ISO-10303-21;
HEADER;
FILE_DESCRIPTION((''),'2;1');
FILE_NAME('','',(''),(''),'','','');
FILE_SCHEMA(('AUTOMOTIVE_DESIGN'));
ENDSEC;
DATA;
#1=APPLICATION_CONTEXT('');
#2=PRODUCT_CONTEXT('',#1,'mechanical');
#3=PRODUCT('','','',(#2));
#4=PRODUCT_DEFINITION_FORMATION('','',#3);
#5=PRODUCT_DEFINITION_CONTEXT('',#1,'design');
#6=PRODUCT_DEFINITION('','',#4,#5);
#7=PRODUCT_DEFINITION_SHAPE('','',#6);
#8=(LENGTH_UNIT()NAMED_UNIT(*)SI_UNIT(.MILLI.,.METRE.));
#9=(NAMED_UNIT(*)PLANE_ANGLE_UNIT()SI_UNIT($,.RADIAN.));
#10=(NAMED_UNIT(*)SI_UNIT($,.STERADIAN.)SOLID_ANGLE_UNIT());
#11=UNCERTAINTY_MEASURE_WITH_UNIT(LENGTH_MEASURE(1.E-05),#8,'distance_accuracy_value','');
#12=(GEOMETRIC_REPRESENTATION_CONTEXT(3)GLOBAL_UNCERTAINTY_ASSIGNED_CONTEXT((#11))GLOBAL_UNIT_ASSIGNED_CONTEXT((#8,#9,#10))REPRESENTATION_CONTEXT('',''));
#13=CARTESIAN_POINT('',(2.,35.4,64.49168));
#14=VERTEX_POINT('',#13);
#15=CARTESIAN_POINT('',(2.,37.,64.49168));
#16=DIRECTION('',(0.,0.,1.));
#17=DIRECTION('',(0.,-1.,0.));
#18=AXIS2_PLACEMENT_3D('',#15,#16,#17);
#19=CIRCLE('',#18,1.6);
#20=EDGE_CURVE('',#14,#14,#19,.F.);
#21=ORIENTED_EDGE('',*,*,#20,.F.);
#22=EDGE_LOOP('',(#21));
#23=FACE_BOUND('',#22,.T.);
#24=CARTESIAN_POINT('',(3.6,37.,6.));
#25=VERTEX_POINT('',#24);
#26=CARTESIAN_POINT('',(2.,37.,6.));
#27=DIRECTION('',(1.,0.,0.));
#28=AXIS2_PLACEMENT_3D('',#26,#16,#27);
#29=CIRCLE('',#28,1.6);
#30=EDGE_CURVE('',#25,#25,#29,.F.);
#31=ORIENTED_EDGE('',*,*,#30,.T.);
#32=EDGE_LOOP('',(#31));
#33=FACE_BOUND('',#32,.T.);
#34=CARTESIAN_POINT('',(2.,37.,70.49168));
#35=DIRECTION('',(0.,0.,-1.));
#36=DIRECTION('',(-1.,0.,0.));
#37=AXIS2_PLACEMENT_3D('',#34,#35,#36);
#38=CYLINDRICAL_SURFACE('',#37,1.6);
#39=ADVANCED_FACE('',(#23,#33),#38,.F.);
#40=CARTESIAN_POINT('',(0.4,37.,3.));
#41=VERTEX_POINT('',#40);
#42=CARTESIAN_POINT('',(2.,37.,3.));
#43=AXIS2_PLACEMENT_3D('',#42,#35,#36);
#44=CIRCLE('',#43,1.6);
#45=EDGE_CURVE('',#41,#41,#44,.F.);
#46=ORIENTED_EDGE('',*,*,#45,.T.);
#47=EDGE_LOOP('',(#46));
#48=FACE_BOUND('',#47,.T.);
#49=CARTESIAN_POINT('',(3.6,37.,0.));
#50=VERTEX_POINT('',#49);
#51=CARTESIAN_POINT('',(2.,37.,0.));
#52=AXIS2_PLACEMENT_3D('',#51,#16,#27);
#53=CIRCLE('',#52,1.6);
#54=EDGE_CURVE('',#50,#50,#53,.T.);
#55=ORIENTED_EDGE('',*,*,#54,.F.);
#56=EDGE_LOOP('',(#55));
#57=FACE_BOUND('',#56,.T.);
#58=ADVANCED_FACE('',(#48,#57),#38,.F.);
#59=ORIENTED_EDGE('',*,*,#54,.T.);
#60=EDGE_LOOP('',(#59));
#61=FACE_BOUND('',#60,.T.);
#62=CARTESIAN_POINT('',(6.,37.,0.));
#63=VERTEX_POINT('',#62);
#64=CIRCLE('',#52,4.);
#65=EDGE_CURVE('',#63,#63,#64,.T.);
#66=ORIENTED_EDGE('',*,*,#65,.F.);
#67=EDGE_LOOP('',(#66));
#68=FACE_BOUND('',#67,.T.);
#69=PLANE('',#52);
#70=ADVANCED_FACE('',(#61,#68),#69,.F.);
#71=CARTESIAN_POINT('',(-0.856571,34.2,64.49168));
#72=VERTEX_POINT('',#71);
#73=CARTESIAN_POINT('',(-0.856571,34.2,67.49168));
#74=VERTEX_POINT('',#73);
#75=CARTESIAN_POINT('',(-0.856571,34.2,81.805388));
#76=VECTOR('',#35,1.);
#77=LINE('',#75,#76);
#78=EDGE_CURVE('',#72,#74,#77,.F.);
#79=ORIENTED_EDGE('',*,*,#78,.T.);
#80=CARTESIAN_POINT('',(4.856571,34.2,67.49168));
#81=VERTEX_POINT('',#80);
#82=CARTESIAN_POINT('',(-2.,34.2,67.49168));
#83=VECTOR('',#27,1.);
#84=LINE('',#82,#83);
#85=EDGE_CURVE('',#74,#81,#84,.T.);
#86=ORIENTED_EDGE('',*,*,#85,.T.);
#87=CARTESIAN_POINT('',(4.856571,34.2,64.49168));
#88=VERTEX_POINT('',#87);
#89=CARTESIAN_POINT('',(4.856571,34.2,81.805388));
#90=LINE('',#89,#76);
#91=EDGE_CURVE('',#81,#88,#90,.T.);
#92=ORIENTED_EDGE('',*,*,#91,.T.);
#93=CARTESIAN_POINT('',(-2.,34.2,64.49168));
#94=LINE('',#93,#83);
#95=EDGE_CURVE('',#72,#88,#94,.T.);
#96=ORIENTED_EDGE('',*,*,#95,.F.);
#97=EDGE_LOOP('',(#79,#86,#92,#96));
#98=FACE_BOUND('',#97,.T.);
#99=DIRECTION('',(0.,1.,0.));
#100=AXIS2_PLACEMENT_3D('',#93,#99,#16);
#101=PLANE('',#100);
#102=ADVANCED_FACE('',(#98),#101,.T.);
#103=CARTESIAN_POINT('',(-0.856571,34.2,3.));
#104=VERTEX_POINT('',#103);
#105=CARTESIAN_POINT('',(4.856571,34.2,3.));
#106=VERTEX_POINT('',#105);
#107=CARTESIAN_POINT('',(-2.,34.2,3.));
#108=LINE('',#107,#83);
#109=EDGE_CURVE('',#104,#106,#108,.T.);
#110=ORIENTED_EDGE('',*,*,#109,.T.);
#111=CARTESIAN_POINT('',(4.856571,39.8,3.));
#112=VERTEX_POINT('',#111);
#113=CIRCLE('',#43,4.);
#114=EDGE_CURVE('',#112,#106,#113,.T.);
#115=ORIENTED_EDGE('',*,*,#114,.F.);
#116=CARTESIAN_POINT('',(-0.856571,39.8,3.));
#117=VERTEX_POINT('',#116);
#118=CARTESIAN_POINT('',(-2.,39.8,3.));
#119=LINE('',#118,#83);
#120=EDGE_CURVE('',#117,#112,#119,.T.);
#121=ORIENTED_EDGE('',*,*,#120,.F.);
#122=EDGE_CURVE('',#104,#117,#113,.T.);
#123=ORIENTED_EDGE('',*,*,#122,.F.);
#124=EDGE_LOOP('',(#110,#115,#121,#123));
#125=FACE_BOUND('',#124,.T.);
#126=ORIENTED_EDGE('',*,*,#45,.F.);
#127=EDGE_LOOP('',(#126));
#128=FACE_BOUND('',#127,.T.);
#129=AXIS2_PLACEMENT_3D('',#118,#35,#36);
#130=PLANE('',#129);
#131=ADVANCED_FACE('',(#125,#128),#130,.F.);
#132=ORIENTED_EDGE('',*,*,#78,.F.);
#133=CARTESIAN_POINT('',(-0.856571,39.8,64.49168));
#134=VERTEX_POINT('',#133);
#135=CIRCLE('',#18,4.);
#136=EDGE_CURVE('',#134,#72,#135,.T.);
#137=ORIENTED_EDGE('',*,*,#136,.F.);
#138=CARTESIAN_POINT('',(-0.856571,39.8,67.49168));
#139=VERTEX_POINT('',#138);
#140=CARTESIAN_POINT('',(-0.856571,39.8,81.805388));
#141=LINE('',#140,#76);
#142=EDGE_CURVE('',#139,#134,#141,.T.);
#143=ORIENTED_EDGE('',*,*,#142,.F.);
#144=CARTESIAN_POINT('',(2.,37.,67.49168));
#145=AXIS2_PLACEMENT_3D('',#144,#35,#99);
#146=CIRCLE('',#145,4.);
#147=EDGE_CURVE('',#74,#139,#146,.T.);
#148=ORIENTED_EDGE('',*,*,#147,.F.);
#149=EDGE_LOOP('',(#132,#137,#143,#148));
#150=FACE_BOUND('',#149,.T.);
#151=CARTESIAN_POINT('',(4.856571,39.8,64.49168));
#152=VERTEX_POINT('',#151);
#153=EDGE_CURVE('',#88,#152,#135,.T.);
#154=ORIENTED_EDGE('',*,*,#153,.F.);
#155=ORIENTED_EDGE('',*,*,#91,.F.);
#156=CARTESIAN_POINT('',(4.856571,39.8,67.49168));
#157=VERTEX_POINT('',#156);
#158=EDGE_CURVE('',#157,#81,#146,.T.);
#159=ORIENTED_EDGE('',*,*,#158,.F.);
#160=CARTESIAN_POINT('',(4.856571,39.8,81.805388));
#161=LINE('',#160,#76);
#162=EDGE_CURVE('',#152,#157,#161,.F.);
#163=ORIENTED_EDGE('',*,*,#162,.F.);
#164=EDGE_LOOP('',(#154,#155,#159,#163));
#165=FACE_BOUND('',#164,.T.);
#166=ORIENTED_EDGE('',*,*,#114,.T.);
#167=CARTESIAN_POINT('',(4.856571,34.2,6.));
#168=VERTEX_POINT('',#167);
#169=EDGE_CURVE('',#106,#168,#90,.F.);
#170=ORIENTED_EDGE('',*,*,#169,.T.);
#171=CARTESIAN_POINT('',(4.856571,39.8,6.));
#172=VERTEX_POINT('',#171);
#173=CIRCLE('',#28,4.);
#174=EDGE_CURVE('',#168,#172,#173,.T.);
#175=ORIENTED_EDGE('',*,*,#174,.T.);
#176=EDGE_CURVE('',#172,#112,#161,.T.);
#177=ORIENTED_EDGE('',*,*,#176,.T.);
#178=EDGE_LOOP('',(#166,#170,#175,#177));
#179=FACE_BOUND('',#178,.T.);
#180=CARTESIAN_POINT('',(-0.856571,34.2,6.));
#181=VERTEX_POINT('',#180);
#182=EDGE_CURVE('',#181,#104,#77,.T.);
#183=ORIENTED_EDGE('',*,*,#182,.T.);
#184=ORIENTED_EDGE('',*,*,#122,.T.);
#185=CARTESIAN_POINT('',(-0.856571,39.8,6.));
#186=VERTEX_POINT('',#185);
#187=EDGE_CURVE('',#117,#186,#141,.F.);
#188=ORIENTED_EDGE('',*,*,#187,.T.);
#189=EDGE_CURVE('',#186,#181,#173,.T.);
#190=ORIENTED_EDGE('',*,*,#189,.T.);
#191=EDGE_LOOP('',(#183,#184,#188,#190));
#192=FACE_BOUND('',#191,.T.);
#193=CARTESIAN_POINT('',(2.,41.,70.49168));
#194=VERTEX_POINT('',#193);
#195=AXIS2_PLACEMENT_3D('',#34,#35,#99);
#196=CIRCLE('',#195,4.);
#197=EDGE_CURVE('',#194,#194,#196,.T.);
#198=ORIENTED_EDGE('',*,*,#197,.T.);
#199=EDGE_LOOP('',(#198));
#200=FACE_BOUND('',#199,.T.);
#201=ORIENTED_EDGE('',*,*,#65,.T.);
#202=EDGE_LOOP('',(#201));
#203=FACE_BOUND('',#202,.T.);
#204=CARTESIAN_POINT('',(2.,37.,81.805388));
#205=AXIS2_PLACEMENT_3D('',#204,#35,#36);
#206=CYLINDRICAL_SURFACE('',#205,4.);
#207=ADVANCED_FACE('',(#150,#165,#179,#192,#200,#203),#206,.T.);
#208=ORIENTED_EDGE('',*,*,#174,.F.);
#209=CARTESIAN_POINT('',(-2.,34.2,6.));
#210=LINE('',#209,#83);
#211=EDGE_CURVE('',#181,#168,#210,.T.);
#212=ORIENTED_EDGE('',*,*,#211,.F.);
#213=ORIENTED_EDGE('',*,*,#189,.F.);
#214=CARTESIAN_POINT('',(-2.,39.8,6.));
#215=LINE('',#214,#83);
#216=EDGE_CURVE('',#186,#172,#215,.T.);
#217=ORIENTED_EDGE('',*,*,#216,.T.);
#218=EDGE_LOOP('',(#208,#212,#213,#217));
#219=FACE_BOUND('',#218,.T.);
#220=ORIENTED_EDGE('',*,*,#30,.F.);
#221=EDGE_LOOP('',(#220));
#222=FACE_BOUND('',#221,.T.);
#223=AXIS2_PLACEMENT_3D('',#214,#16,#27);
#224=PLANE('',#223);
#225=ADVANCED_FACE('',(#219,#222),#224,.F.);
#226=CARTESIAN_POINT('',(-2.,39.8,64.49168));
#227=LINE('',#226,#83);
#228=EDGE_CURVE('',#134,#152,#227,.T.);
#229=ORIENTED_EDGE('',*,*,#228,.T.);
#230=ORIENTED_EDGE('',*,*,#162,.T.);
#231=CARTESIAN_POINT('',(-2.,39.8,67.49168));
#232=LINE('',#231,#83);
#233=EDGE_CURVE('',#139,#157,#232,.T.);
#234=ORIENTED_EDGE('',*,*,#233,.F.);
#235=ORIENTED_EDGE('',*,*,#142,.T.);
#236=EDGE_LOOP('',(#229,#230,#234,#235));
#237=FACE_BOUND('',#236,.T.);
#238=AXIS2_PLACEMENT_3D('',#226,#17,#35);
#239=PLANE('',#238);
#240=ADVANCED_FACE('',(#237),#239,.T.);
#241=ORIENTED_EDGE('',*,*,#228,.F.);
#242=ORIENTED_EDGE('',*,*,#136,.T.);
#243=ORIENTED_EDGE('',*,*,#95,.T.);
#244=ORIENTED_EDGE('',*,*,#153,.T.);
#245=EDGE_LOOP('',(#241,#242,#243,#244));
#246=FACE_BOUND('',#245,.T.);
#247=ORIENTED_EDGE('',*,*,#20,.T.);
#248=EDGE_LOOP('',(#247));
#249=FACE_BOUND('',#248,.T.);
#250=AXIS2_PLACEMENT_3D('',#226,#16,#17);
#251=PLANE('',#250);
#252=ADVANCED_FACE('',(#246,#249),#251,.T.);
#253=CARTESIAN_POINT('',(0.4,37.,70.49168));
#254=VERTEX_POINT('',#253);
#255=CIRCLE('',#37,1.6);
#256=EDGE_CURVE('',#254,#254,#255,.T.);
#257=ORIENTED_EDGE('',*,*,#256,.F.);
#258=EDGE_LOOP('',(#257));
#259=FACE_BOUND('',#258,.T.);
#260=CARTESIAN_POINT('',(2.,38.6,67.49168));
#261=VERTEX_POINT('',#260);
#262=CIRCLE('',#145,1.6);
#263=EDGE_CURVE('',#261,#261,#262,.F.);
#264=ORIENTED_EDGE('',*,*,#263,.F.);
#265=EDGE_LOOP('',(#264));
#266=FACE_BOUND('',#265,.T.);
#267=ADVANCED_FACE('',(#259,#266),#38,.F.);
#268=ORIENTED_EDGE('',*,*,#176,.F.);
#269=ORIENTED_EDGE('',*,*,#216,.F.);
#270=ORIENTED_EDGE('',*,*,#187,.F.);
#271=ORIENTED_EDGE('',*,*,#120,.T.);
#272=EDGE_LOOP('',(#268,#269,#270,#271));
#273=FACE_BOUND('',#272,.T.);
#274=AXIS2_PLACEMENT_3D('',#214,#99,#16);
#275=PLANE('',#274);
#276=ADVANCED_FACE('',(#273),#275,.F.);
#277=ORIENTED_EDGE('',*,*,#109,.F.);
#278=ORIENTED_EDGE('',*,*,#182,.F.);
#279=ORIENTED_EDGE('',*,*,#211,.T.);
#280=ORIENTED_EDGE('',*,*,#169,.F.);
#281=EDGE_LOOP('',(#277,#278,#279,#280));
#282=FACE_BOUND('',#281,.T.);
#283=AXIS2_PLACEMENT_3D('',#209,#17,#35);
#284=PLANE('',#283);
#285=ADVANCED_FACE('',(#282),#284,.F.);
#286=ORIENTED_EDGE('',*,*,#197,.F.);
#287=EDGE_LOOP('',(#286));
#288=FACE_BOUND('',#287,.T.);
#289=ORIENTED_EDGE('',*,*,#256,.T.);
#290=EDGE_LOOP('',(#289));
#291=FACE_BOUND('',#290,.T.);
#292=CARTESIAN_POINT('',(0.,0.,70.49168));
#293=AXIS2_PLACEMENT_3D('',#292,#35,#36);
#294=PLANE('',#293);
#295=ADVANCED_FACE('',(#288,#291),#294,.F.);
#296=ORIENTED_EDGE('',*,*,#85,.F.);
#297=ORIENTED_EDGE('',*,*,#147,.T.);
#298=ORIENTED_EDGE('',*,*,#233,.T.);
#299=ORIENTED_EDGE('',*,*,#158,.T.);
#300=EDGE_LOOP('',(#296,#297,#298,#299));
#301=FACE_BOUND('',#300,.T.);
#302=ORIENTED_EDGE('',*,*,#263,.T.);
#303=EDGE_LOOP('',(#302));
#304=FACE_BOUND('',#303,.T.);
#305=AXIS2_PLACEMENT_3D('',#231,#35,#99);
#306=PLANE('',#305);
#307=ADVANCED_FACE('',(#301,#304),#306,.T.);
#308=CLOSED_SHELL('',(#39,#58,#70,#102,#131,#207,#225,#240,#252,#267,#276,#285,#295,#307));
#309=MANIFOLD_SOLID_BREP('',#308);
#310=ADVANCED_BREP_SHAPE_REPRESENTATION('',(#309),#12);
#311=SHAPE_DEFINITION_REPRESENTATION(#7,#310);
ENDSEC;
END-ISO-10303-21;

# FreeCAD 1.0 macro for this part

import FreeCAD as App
import Part
import Sketcher
from FreeCAD import Vector


def add_polygon(sketch, points):
    """Adds a closed chain of lines whose ends are joined by coincident constraints."""
    first, n = sketch.GeometryCount, len(points)
    for a, b in zip(points, points[1:] + points[:1]):
        sketch.addGeometry(Part.LineSegment(App.Vector(*a, 0), App.Vector(*b, 0)), False)
    for i in range(n):
        sketch.addConstraint(Sketcher.Constraint("Coincident", first + i, 2, first + (i + 1) % n, 1))

doc = App.newDocument("Part")
body = doc.addObject("PartDesign::Body", "Body")

sketch1 = doc.addObject("Sketcher::SketchObject", "Sketch")
body.addObject(sketch1)
sketch1.AttachmentSupport = (doc.XY_Plane, [""])
sketch1.MapMode = "FlatFace"
sketch1.addGeometry(Part.Circle(Vector(2, 37, 0), Vector(0, 0, 1), 4), False)
sketch1.addConstraint([
    Sketcher.Constraint("Diameter", 0, 8.0),
    Sketcher.Constraint("DistanceX", -1, 1, 0, 3, 2.0),
    Sketcher.Constraint("DistanceY", -1, 1, 0, 3, 37.0),
])
pad1 = doc.addObject("PartDesign::Pad", "Pad")
body.addObject(pad1)
pad1.Profile = sketch1
pad1.Length = 70.49168

sketch2 = doc.addObject("Sketcher::SketchObject", "Sketch001")
body.addObject(sketch2)
sketch2.AttachmentSupport = (doc.XY_Plane, [""])
sketch2.MapMode = "FlatFace"
sketch2.addGeometry(Part.Circle(Vector(2, 37, 0), Vector(0, 0, 1), 1.6), False)
sketch2.addConstraint([
    Sketcher.Constraint("Diameter", 0, 3.2),
    Sketcher.Constraint("DistanceX", -1, 1, 0, 3, 2.0),
    Sketcher.Constraint("DistanceY", -1, 1, 0, 3, 37.0),
])
pocket1 = doc.addObject("PartDesign::Pocket", "Pocket")
body.addObject(pocket1)
pocket1.Profile = sketch2
pocket1.Type = "ThroughAll"
pocket1.Midplane = True

sketch3 = doc.addObject("Sketcher::SketchObject", "Sketch002")
body.addObject(sketch3)
sketch3.AttachmentSupport = (doc.YZ_Plane, [""])
sketch3.MapMode = "FlatFace"
sketch3.AttachmentOffset = App.Placement(Vector(0, 0, -82.768435), App.Rotation())
add_polygon(sketch3, [(39.8, 6), (34.2, 6), (34.2, 3), (39.8, 3)])
sketch3.addConstraint([
    Sketcher.Constraint("Horizontal", 0),
    Sketcher.Constraint("Vertical", 1),
    Sketcher.Constraint("Horizontal", 2),
    Sketcher.Constraint("Vertical", 3),
    Sketcher.Constraint("DistanceY", 1, 2, 1, 1, 3.0),
    Sketcher.Constraint("DistanceX", 0, 2, 0, 1, 5.6),
    Sketcher.Constraint("DistanceY", -1, 1, 0, 2, 6.0),
    Sketcher.Constraint("DistanceX", -1, 1, 0, 2, 34.2),
])
pocket2 = doc.addObject("PartDesign::Pocket", "Pocket001")
body.addObject(pocket2)
pocket2.Profile = sketch3
pocket2.Length = 150.53687
pocket2.Reversed = True
doc.recompute()

datumplane = doc.addObject("PartDesign::Plane", "DatumPlane")
body.addObject(datumplane)
datumplane.AttachmentSupport = (doc.XY_Plane, [""])
datumplane.MapMode = "FlatFace"
datumplane.AttachmentOffset = App.Placement(Vector(0, 0, 35.24584), App.Rotation())
mirrored = doc.addObject("PartDesign::Mirrored", "Mirrored")
body.addObject(mirrored)
mirrored.Originals = [pocket2]
mirrored.MirrorPlane = (datumplane, [""])
body.Tip = mirrored

doc.recompute()
